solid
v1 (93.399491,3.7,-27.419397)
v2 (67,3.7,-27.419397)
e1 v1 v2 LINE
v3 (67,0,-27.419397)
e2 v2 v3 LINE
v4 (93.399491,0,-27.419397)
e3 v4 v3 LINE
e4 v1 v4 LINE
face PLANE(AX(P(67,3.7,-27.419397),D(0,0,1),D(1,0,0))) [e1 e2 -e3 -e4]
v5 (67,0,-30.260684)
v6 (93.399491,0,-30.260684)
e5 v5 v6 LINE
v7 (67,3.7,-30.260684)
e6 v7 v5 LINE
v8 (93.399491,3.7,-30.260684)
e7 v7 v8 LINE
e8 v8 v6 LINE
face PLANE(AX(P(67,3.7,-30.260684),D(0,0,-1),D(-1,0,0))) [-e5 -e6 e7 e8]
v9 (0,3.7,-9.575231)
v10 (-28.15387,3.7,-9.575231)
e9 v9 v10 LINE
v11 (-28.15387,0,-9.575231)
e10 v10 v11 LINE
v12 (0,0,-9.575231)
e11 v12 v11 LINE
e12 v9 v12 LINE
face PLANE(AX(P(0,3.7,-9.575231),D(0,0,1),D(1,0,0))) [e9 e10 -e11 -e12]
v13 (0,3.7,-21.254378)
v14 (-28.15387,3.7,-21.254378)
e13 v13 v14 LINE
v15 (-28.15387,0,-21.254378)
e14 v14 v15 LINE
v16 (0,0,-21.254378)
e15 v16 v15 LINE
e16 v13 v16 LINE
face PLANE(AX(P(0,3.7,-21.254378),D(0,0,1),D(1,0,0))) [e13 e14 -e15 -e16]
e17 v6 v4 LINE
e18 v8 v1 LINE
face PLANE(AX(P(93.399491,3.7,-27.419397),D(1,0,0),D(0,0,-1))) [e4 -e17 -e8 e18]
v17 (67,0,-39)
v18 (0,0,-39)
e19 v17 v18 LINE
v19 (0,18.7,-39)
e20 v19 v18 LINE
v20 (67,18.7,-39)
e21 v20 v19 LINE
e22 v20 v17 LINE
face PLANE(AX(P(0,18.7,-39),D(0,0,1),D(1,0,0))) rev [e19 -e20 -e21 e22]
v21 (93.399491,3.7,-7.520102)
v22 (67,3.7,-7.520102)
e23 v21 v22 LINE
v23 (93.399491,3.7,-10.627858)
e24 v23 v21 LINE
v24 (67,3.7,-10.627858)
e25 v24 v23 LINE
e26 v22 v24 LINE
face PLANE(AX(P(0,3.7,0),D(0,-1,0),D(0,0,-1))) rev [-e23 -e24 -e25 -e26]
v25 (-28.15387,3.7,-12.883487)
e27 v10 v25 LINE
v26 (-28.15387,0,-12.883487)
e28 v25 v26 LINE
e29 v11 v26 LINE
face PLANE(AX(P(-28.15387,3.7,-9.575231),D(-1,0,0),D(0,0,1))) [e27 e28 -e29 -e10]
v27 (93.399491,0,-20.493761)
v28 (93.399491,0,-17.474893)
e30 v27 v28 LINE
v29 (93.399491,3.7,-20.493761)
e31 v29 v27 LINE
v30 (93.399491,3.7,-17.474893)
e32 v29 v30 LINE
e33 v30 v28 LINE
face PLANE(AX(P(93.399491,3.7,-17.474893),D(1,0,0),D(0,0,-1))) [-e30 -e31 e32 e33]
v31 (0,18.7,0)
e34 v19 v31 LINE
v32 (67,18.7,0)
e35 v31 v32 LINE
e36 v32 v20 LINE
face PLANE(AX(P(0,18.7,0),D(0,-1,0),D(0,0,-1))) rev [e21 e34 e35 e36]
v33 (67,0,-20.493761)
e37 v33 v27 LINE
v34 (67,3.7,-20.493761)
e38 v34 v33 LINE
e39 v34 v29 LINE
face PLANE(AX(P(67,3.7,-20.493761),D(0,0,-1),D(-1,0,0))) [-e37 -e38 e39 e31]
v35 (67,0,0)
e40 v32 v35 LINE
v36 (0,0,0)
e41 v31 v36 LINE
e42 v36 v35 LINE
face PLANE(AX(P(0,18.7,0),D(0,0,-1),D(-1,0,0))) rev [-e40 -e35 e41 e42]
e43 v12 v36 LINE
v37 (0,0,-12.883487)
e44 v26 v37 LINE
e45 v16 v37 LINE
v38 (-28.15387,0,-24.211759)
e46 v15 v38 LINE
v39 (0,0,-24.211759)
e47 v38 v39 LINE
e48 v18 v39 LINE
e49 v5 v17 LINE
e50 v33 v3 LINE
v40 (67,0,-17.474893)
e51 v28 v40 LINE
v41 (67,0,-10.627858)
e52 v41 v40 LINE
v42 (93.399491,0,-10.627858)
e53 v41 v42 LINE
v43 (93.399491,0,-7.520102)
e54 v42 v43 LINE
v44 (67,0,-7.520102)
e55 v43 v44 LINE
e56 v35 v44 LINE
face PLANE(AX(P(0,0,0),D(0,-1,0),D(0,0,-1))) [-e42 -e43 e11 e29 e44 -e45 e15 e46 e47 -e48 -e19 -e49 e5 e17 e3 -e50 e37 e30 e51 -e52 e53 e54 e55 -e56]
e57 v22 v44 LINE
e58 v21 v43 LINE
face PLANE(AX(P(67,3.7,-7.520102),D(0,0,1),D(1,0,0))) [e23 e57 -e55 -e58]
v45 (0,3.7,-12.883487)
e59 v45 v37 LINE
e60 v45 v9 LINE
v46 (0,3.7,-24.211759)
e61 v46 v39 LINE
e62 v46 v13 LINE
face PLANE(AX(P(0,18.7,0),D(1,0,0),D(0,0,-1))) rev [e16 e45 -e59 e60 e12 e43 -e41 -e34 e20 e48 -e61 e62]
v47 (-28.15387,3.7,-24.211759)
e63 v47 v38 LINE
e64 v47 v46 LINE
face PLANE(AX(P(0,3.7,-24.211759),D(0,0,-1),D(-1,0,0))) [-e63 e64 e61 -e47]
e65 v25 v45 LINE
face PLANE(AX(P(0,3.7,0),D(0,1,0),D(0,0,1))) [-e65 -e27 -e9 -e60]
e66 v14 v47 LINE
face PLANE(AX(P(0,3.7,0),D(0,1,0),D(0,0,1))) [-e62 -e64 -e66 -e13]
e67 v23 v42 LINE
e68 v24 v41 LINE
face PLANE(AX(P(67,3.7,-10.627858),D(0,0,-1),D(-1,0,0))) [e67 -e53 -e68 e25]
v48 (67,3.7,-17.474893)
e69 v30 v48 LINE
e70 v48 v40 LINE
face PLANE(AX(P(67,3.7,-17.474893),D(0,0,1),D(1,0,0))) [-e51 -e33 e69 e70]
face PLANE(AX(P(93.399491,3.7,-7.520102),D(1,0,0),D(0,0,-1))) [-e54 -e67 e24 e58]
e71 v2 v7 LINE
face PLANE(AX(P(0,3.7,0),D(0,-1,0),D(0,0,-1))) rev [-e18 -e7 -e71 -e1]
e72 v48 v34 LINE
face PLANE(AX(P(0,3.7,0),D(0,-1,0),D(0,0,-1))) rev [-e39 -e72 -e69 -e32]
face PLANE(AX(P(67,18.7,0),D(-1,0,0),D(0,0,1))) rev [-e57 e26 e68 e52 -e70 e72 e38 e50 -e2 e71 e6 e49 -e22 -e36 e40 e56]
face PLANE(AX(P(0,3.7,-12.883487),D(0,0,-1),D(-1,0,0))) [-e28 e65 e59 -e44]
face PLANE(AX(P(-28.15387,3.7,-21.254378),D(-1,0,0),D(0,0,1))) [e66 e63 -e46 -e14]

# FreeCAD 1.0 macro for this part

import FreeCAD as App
import Part
import Sketcher

doc = App.newDocument("Part")
body = doc.addObject("PartDesign::Body", "Body")

sketch1 = body.newObject("Sketcher::SketchObject", "Sketch")
sketch1.AttachmentSupport = (doc.getObject("XZ_Plane"), [""])
sketch1.MapMode = "FlatFace"
sketch1.addGeometry([
    Part.LineSegment(App.Vector(0, -39, 0), App.Vector(0, 0, 0)),
    Part.LineSegment(App.Vector(0, 0, 0), App.Vector(67, 0, 0)),
    Part.LineSegment(App.Vector(67, 0, 0), App.Vector(67, -39, 0)),
    Part.LineSegment(App.Vector(67, -39, 0), App.Vector(0, -39, 0)),
], False)
sketch1.addConstraint([
    Sketcher.Constraint("Coincident", 0, 2, 1, 1),
    Sketcher.Constraint("Coincident", 1, 2, 2, 1),
    Sketcher.Constraint("Coincident", 2, 2, 3, 1),
    Sketcher.Constraint("Coincident", 3, 2, 0, 1),
    Sketcher.Constraint("Vertical", 0),
    Sketcher.Constraint("Horizontal", 1),
    Sketcher.Constraint("Vertical", 2),
    Sketcher.Constraint("Horizontal", 3),
    Sketcher.Constraint("Coincident", 0, 2, -1, 1),
    Sketcher.Constraint("DistanceX", 1, 1, 1, 2, 67.0),
    Sketcher.Constraint("DistanceY", 0, 1, 0, 2, 39.0),
])
pad1 = body.newObject("PartDesign::Pad", "Pad")
pad1.Profile = sketch1
pad1.Length = 18.7
pad1.Reversed = True

sketch2 = body.newObject("Sketcher::SketchObject", "Sketch001")
sketch2.AttachmentSupport = (doc.getObject("XZ_Plane"), [""])
sketch2.MapMode = "FlatFace"
sketch2.addGeometry([
    Part.LineSegment(App.Vector(-28.2, -9.6, 0), App.Vector(-28.2, -12.9, 0)),
    Part.LineSegment(App.Vector(-28.2, -12.9, 0), App.Vector(0, -12.9, 0)),
    Part.LineSegment(App.Vector(0, -12.9, 0), App.Vector(0, -9.6, 0)),
    Part.LineSegment(App.Vector(0, -9.6, 0), App.Vector(-28.2, -9.6, 0)),
    Part.LineSegment(App.Vector(-28.2, -21.3, 0), App.Vector(-28.2, -24.2, 0)),
    Part.LineSegment(App.Vector(-28.2, -24.2, 0), App.Vector(0, -24.2, 0)),
    Part.LineSegment(App.Vector(0, -24.2, 0), App.Vector(0, -21.3, 0)),
    Part.LineSegment(App.Vector(0, -21.3, 0), App.Vector(-28.2, -21.3, 0)),
    Part.LineSegment(App.Vector(67, -7.5, 0), App.Vector(67, -10.6, 0)),
    Part.LineSegment(App.Vector(67, -10.6, 0), App.Vector(93.4, -10.6, 0)),
    Part.LineSegment(App.Vector(93.4, -10.6, 0), App.Vector(93.4, -7.5, 0)),
    Part.LineSegment(App.Vector(93.4, -7.5, 0), App.Vector(67, -7.5, 0)),
    Part.LineSegment(App.Vector(67, -17.5, 0), App.Vector(67, -20.5, 0)),
    Part.LineSegment(App.Vector(67, -20.5, 0), App.Vector(93.4, -20.5, 0)),
    Part.LineSegment(App.Vector(93.4, -20.5, 0), App.Vector(93.4, -17.5, 0)),
    Part.LineSegment(App.Vector(93.4, -17.5, 0), App.Vector(67, -17.5, 0)),
    Part.LineSegment(App.Vector(67, -27.4, 0), App.Vector(67, -30.3, 0)),
    Part.LineSegment(App.Vector(67, -30.3, 0), App.Vector(93.4, -30.3, 0)),
    Part.LineSegment(App.Vector(93.4, -30.3, 0), App.Vector(93.4, -27.4, 0)),
    Part.LineSegment(App.Vector(93.4, -27.4, 0), App.Vector(67, -27.4, 0)),
], False)
sketch2.addConstraint([
    Sketcher.Constraint("Coincident", 0, 2, 1, 1),
    Sketcher.Constraint("Coincident", 1, 2, 2, 1),
    Sketcher.Constraint("Coincident", 2, 2, 3, 1),
    Sketcher.Constraint("Coincident", 3, 2, 0, 1),
    Sketcher.Constraint("Coincident", 4, 2, 5, 1),
    Sketcher.Constraint("Coincident", 5, 2, 6, 1),
    Sketcher.Constraint("Coincident", 6, 2, 7, 1),
    Sketcher.Constraint("Coincident", 7, 2, 4, 1),
    Sketcher.Constraint("Coincident", 8, 2, 9, 1),
    Sketcher.Constraint("Coincident", 9, 2, 10, 1),
    Sketcher.Constraint("Coincident", 10, 2, 11, 1),
    Sketcher.Constraint("Coincident", 11, 2, 8, 1),
    Sketcher.Constraint("Coincident", 12, 2, 13, 1),
    Sketcher.Constraint("Coincident", 13, 2, 14, 1),
    Sketcher.Constraint("Coincident", 14, 2, 15, 1),
    Sketcher.Constraint("Coincident", 15, 2, 12, 1),
    Sketcher.Constraint("Coincident", 16, 2, 17, 1),
    Sketcher.Constraint("Coincident", 17, 2, 18, 1),
    Sketcher.Constraint("Coincident", 18, 2, 19, 1),
    Sketcher.Constraint("Coincident", 19, 2, 16, 1),
    Sketcher.Constraint("Vertical", 0),
    Sketcher.Constraint("Horizontal", 1),
    Sketcher.Constraint("Vertical", 2),
    Sketcher.Constraint("Horizontal", 3),
    Sketcher.Constraint("Vertical", 4),
    Sketcher.Constraint("Horizontal", 5),
    Sketcher.Constraint("Vertical", 6),
    Sketcher.Constraint("Horizontal", 7),
    Sketcher.Constraint("Vertical", 8),
    Sketcher.Constraint("Horizontal", 9),
    Sketcher.Constraint("Vertical", 10),
    Sketcher.Constraint("Horizontal", 11),
    Sketcher.Constraint("Vertical", 12),
    Sketcher.Constraint("Horizontal", 13),
    Sketcher.Constraint("Vertical", 14),
    Sketcher.Constraint("Horizontal", 15),
    Sketcher.Constraint("Vertical", 16),
    Sketcher.Constraint("Horizontal", 17),
    Sketcher.Constraint("Vertical", 18),
    Sketcher.Constraint("Horizontal", 19),
    Sketcher.Constraint("PointOnObject", 1, 2, -2),
    Sketcher.Constraint("PointOnObject", 5, 2, -2),
    Sketcher.Constraint("Vertical", 3, 2, 4, 2),
    Sketcher.Constraint("Vertical", 11, 2, 12, 2),
    Sketcher.Constraint("Vertical", 10, 2, 13, 2),
    Sketcher.Constraint("Vertical", 15, 2, 16, 2),
    Sketcher.Constraint("Vertical", 14, 2, 17, 2),
    Sketcher.Constraint("DistanceX", -1, 1, 8, 2, 67.0),
    Sketcher.Constraint("DistanceX", 1, 1, 1, 2, 28.15387),
    Sketcher.Constraint("DistanceX", 9, 1, 9, 2, 26.399491),
    Sketcher.Constraint("DistanceY", 4, 2, 4, 1, 2.957381),
    Sketcher.Constraint("DistanceY", 10, 2, -1, 1, 7.520102),
    Sketcher.Constraint("DistanceY", 5, 2, 8, 2, 13.583901),
    Sketcher.Constraint("DistanceY", 0, 2, 0, 1, 3.308256),
    Sketcher.Constraint("DistanceY", 8, 2, 8, 1, 3.107756),
    Sketcher.Constraint("DistanceY", 12, 2, 12, 1, 3.018867),
    Sketcher.Constraint("DistanceY", 16, 2, 16, 1, 2.841287),
    Sketcher.Constraint("DistanceY", 2, 2, -1, 1, 9.575231),
    Sketcher.Constraint("DistanceY", 12, 2, -1, 1, 20.493761),
    Sketcher.Constraint("DistanceY", 16, 2, 15, 2, 12.78579),
])
pad2 = body.newObject("PartDesign::Pad", "Pad001")
pad2.Profile = sketch2
pad2.Length = 3.7
pad2.Reversed = True

doc.recompute()
